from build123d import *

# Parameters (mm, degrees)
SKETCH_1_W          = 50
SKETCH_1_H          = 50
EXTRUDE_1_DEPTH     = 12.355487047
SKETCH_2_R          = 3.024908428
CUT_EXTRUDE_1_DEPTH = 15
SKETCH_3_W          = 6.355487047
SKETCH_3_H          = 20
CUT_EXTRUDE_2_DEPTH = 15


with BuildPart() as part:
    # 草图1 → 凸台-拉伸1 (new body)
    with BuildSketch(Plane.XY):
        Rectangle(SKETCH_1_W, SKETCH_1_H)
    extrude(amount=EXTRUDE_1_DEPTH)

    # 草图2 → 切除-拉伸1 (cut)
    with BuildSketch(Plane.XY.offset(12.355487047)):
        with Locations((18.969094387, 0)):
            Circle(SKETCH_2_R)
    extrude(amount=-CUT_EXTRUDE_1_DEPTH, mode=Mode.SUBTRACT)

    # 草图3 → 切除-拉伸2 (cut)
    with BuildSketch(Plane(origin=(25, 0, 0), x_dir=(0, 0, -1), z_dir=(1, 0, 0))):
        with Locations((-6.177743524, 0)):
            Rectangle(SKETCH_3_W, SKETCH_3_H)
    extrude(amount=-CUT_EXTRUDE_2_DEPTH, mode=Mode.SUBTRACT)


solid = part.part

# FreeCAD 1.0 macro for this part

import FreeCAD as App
import Part
import Sketcher

doc = App.newDocument("Part")
body = doc.addObject("PartDesign::Body", "Body")

sketch1 = body.newObject("Sketcher::SketchObject", "Sketch")
sketch1.AttachmentSupport = (doc.getObject("XY_Plane"), [""])
sketch1.MapMode = "FlatFace"
sketch1.addGeometry([
    Part.LineSegment(App.Vector(-25, 25, 0), App.Vector(-25, -25, 0)),
    Part.LineSegment(App.Vector(-25, -25, 0), App.Vector(25, -25, 0)),
    Part.LineSegment(App.Vector(25, -25, 0), App.Vector(25, 25, 0)),
    Part.LineSegment(App.Vector(25, 25, 0), App.Vector(-25, 25, 0)),
], False)
sketch1.addConstraint([
    Sketcher.Constraint("Coincident", 0, 2, 1, 1),
    Sketcher.Constraint("Coincident", 1, 2, 2, 1),
    Sketcher.Constraint("Coincident", 2, 2, 3, 1),
    Sketcher.Constraint("Coincident", 3, 2, 0, 1),
    Sketcher.Constraint("Vertical", 0),
    Sketcher.Constraint("Horizontal", 1),
    Sketcher.Constraint("Vertical", 2),
    Sketcher.Constraint("Horizontal", 3),
    Sketcher.Constraint("Symmetric", 0, 2, 2, 2, -1, 1),
    Sketcher.Constraint("Equal", 3, 0),
    Sketcher.Constraint("DistanceX", 1, 1, 1, 2, 50.0),
])
pad1 = body.newObject("PartDesign::Pad", "Pad")
pad1.Profile = sketch1
pad1.Length = 12.355487

sketch2 = body.newObject("Sketcher::SketchObject", "Sketch001")
sketch2.AttachmentSupport = (doc.getObject("XY_Plane"), [""])
sketch2.MapMode = "FlatFace"
sketch2.AttachmentOffset = App.Placement(App.Vector(0, 0, 12.355487), App.Rotation())
sketch2.addGeometry(Part.Circle(App.Vector(19, 0, 0), App.Vector(0, 0, 1), 3), False)
sketch2.addConstraint([
    Sketcher.Constraint("PointOnObject", 0, 3, -1),
    Sketcher.Constraint("Diameter", 0, 6.049817),
    Sketcher.Constraint("DistanceX", -1, 1, 0, 3, 18.969094),
])
pocket1 = body.newObject("PartDesign::Pocket", "Pocket")
pocket1.Profile = sketch2
pocket1.Length = 15

sketch3 = body.newObject("Sketcher::SketchObject", "Sketch002")
sketch3.AttachmentSupport = (doc.getObject("YZ_Plane"), [""])
sketch3.MapMode = "FlatFace"
sketch3.AttachmentOffset = App.Placement(App.Vector(0, 0, 25), App.Rotation())
sketch3.addGeometry([
    Part.LineSegment(App.Vector(10, 9, 0), App.Vector(-10, 9, 0)),
    Part.LineSegment(App.Vector(-10, 9, 0), App.Vector(-10, 3, 0)),
    Part.LineSegment(App.Vector(-10, 3, 0), App.Vector(10, 3, 0)),
    Part.LineSegment(App.Vector(10, 3, 0), App.Vector(10, 9, 0)),
], False)
sketch3.addConstraint([
    Sketcher.Constraint("Coincident", 0, 2, 1, 1),
    Sketcher.Constraint("Coincident", 1, 2, 2, 1),
    Sketcher.Constraint("Coincident", 2, 2, 3, 1),
    Sketcher.Constraint("Coincident", 3, 2, 0, 1),
    Sketcher.Constraint("Horizontal", 0),
    Sketcher.Constraint("Vertical", 1),
    Sketcher.Constraint("Horizontal", 2),
    Sketcher.Constraint("Vertical", 3),
    Sketcher.Constraint("DistanceX", 0, 2, 0, 1, 20.0),
    Sketcher.Constraint("DistanceX", 0, 2, -1, 1, 10.0),
    Sketcher.Constraint("DistanceY", -1, 1, 1, 2, 3.0),
    Sketcher.Constraint("DistanceY", 1, 2, 1, 1, 6.355487),
])
pocket2 = body.newObject("PartDesign::Pocket", "Pocket001")
pocket2.Profile = sketch3
pocket2.Length = 15

doc.recompute()
